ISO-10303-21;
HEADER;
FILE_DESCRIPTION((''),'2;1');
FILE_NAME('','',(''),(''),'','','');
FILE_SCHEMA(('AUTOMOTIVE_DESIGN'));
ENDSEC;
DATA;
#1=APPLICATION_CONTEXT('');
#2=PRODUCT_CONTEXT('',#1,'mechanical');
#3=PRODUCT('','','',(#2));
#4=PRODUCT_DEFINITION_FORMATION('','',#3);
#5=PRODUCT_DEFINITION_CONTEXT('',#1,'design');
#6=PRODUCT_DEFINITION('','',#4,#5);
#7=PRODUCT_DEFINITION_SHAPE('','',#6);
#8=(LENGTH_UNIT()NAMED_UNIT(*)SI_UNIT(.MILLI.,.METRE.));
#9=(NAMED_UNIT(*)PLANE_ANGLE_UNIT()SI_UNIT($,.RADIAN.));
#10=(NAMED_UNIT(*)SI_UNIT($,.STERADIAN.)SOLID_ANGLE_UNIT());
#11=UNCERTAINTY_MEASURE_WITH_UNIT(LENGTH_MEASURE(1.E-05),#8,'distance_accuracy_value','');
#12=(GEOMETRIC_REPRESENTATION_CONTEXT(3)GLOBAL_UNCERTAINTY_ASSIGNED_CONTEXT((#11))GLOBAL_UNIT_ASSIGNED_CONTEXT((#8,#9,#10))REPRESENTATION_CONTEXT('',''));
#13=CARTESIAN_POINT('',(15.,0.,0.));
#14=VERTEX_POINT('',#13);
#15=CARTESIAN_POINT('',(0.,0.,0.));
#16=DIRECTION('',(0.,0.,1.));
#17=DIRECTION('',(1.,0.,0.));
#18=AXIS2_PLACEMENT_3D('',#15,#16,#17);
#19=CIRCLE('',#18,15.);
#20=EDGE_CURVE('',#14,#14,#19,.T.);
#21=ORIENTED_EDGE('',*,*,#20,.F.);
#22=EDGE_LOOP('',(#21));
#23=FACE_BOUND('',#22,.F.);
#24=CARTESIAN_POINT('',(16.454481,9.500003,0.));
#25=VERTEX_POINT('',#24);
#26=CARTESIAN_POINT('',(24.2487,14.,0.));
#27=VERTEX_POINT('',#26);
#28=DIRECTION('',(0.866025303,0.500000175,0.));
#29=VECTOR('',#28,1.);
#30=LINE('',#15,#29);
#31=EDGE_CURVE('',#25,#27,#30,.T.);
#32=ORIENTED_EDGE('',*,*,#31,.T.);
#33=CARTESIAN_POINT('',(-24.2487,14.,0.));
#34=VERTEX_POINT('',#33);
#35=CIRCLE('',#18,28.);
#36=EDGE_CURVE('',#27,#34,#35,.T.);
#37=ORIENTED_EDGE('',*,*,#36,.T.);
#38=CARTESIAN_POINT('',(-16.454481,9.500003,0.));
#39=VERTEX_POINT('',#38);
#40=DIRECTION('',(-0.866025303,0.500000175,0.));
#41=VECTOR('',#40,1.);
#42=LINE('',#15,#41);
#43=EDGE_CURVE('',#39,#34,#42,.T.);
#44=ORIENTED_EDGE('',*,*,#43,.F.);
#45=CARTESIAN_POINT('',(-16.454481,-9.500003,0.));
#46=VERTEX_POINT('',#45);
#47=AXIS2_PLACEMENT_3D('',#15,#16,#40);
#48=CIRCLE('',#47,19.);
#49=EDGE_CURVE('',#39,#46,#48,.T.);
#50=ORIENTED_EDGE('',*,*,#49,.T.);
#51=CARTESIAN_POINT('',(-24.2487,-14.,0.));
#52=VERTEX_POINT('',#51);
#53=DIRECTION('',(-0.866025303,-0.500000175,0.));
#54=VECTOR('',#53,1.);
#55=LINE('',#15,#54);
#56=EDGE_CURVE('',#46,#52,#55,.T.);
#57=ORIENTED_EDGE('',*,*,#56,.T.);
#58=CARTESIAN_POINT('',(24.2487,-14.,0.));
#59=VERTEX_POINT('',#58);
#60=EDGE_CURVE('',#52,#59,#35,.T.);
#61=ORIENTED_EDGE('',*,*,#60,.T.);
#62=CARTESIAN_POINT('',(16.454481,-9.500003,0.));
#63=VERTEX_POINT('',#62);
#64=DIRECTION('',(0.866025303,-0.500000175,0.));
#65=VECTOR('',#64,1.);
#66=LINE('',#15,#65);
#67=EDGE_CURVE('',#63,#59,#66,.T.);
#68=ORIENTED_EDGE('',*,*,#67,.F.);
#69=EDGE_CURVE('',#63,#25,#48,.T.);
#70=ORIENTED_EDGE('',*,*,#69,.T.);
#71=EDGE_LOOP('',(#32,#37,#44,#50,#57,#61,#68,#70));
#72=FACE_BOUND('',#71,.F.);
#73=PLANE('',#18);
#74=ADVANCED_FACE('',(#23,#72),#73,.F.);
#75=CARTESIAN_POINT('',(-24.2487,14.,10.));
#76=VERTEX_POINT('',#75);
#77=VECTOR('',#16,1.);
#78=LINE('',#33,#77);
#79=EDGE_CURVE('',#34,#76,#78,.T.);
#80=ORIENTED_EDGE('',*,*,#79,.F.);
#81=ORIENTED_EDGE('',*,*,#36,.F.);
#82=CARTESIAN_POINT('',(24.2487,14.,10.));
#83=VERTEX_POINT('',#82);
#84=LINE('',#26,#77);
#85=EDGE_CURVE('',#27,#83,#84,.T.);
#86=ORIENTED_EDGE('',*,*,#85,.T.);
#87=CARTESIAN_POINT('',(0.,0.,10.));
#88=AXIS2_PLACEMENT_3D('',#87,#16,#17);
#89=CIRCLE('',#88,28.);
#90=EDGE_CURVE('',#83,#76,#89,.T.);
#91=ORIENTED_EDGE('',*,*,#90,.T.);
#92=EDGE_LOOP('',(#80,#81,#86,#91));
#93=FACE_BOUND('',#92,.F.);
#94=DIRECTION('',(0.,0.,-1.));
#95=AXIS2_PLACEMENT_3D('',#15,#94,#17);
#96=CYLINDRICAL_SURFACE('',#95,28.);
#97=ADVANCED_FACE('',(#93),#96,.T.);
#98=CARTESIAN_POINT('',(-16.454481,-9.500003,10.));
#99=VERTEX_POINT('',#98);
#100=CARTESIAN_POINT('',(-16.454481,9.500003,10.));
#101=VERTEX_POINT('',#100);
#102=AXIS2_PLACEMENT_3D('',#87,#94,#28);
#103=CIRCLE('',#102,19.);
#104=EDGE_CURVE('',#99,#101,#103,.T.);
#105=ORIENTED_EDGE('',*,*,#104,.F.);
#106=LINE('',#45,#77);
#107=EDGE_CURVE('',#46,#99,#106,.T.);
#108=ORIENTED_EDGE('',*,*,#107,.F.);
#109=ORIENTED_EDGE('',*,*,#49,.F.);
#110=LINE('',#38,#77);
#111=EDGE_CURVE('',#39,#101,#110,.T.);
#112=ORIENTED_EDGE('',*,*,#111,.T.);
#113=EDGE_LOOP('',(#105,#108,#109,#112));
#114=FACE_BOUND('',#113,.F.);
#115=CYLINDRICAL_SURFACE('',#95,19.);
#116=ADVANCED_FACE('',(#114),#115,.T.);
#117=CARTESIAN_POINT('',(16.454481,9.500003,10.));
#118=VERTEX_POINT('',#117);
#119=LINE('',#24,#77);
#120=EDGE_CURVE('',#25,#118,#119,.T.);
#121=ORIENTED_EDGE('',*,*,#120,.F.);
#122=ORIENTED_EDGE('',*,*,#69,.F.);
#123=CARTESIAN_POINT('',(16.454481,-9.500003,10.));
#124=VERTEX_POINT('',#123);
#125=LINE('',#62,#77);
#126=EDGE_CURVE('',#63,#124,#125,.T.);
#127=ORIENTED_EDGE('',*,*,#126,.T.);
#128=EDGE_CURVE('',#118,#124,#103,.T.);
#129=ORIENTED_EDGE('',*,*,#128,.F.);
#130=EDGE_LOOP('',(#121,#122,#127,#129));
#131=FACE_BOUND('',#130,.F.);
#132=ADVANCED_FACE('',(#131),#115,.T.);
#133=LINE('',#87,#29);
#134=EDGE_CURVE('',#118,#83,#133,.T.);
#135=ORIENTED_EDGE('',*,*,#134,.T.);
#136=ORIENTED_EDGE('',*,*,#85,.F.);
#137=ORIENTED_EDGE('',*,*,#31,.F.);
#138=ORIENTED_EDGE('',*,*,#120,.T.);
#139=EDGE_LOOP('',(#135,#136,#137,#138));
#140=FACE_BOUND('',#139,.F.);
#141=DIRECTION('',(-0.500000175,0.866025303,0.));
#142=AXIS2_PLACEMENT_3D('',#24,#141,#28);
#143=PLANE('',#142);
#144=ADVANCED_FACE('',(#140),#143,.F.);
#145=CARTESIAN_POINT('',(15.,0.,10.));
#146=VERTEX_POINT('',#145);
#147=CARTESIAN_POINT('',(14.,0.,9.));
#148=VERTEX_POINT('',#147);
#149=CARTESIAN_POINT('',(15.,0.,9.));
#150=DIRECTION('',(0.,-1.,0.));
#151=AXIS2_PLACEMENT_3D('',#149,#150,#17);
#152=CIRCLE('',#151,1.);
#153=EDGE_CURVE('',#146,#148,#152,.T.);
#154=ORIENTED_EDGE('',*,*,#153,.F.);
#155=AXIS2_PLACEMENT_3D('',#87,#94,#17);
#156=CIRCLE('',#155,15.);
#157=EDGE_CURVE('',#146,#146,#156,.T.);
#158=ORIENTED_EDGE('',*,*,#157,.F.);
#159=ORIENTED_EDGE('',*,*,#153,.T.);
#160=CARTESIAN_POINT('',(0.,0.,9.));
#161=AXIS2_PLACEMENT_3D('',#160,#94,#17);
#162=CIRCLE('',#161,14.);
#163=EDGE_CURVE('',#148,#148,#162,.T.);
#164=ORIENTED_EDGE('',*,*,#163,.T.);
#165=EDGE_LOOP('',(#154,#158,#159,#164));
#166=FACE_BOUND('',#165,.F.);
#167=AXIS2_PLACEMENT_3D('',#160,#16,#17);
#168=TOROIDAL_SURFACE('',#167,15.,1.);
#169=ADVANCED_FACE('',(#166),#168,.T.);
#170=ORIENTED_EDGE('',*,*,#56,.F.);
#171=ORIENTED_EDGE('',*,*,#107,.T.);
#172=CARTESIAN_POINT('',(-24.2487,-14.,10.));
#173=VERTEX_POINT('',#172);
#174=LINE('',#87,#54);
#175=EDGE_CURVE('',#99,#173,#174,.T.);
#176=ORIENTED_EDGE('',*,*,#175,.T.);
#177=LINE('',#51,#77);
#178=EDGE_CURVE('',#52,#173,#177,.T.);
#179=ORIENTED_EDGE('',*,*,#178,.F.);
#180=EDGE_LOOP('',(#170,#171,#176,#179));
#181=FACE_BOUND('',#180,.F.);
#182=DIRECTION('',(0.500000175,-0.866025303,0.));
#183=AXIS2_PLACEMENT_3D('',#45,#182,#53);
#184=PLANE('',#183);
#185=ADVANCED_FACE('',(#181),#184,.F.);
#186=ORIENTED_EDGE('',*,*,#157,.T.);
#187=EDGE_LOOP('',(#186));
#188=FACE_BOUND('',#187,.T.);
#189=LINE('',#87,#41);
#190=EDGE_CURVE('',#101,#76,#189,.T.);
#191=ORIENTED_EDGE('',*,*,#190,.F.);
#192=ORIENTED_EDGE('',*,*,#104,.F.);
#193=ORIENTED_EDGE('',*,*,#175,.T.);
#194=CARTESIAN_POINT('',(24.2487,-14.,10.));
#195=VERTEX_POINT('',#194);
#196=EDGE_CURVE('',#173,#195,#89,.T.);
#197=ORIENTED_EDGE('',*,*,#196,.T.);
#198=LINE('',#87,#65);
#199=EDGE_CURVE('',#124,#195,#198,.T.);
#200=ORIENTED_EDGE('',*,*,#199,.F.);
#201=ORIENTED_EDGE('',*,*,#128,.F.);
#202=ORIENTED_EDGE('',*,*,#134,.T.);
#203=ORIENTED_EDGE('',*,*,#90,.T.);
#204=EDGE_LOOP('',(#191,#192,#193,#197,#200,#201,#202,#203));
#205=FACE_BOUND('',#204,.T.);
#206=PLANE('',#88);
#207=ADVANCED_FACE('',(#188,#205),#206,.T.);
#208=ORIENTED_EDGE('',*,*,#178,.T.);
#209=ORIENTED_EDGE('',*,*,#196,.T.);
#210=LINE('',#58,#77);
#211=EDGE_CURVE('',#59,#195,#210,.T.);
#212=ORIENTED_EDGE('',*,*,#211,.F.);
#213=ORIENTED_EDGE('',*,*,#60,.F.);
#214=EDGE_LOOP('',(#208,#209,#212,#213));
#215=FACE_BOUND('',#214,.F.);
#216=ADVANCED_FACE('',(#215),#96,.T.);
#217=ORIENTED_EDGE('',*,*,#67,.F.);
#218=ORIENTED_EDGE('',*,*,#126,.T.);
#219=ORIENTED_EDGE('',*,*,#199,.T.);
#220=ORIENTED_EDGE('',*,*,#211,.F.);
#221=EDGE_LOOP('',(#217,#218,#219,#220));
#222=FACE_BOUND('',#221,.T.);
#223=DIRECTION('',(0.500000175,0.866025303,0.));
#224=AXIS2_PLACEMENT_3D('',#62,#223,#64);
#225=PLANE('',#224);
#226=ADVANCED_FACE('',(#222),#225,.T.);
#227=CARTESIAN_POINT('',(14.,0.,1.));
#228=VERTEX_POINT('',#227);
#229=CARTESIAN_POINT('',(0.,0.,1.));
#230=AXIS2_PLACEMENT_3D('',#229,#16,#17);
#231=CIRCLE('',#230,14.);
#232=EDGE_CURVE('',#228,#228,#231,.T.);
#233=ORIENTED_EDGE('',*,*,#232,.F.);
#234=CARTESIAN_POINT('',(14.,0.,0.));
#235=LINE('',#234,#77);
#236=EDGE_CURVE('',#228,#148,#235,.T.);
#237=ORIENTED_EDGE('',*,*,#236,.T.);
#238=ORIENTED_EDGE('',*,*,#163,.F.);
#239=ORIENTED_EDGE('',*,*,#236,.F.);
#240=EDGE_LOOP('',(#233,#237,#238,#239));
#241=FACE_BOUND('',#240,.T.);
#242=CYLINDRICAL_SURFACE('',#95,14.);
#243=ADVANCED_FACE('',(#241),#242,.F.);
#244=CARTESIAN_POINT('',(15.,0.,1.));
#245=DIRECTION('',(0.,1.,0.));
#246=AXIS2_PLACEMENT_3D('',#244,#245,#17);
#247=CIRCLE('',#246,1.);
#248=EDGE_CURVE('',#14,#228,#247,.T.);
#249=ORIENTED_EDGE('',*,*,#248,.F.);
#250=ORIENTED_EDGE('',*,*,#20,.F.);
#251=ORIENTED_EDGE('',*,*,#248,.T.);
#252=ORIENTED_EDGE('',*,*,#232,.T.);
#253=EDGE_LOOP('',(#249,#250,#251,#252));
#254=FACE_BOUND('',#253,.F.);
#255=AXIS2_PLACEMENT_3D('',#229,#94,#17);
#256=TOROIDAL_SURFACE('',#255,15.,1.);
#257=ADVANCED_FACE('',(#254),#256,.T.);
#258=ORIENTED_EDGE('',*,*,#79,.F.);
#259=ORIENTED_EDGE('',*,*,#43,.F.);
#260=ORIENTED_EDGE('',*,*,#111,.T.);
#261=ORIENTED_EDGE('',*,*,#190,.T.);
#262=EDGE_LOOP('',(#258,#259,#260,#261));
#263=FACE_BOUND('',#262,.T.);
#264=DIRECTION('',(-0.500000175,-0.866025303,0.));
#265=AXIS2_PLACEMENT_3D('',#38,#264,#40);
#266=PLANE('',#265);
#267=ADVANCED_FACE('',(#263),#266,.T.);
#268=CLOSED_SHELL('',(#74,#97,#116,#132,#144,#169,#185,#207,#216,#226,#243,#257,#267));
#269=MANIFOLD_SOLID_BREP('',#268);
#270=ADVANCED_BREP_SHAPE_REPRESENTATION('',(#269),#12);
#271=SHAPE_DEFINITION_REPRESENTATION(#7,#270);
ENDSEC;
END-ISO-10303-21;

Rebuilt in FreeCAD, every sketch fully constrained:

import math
import FreeCAD as App
import Part
import Sketcher
from FreeCAD import Vector
Q = App.Units.Quantity


def edges_at(feature, points):
    """Names of the edges that pass closest to the given points."""
    edges = feature.Shape.Edges
    near = lambda p: min(range(len(edges)), key=lambda i: edges[i].distToShape(Part.Vertex(*p))[0])
    return sorted({f"Edge{near(p) + 1}" for p in points})

doc = App.newDocument("Part")
body = doc.addObject("PartDesign::Body", "Body")

# Sketch on XY plane
sketch1 = doc.addObject("Sketcher::SketchObject", "Sketch")
body.addObject(sketch1)
sketch1.AttachmentSupport = (doc.XY_Plane, [""])
sketch1.MapMode = "FlatFace"
sketch1.addGeometry([
    Part.LineSegment(Vector(16.454481, 9.500003, 0), Vector(24.2487, 14, 0)),  # 0
    Part.ArcOfCircle(Part.Circle(Vector(0, 0, 0), Vector(0, 0, 1), 28), math.radians(30.000012), math.radians(149.999988)),  # 1
    Part.LineSegment(Vector(-24.2487, 14, 0), Vector(-16.454481, 9.500003, 0)),  # 2
    Part.ArcOfCircle(Part.Circle(Vector(0, 0, 0), Vector(0, 0, 1), 19), math.radians(149.999988), math.radians(390.000012)),  # 3
    Part.Circle(Vector(0, 0, 0), Vector(0, 0, 1), 14),  # 4
], False)
sketch1.addConstraint([
    Sketcher.Constraint("Coincident", 0, 2, 1, 1),
    Sketcher.Constraint("Coincident", 1, 2, 2, 1),
    Sketcher.Constraint("Coincident", 2, 2, 3, 1),
    Sketcher.Constraint("Coincident", 3, 2, 0, 1),
    Sketcher.Constraint("Coincident", 1, 3, -1, 1),
    Sketcher.Constraint("Coincident", 3, 3, -1, 1),
    Sketcher.Constraint("Coincident", 4, 3, -1, 1),
    Sketcher.Constraint("Horizontal", 0, 2, 1, 2),
    Sketcher.Constraint("Horizontal", 2, 2, 3, 2),
    Sketcher.Constraint("Diameter", 4, Q("28 mm")),
    Sketcher.Constraint("Radius", 1, Q("28 mm")),
    Sketcher.Constraint("Angle", 0, Q("30 deg")),
    Sketcher.Constraint("Radius", 3, Q("19 mm")),
    Sketcher.Constraint("DistanceY", -1, 1, 0, 2, Q("14 mm")),
])
pad1 = doc.addObject("PartDesign::Pad", "Pad")
body.addObject(pad1)
pad1.Profile = sketch1
pad1.Length = 10
doc.recompute()

fillet = doc.addObject("PartDesign::Fillet", "Fillet")
body.addObject(fillet)
fillet.Base = (pad1, edges_at(pad1, [(-14, 0, 0), (-14, 0, 10)]))
fillet.Radius = 1

# Sketch on XY plane
sketch2 = doc.addObject("Sketcher::SketchObject", "Sketch001")
body.addObject(sketch2)
sketch2.AttachmentSupport = (doc.XY_Plane, [""])
sketch2.MapMode = "FlatFace"
sketch2.addGeometry([
    Part.ArcOfCircle(Part.Circle(Vector(0, 0, 0), Vector(0, 0, 1), 28), math.radians(-149.999988), math.radians(-30.000012)),
    Part.LineSegment(Vector(24.2487, -14, 0), Vector(16.454481, -9.500003, 0)),
    Part.ArcOfCircle(Part.Circle(Vector(0, 0, 0), Vector(0, 0, 1), 19), math.radians(-149.999988), math.radians(-30.000012)),
    Part.LineSegment(Vector(-16.454481, -9.500003, 0), Vector(-24.2487, -14, 0)),
], False)
sketch2.addConstraint([
    Sketcher.Constraint("Coincident", 0, 2, 1, 1),
    Sketcher.Constraint("Coincident", 1, 2, 2, 2),
    Sketcher.Constraint("Coincident", 2, 1, 3, 1),
    Sketcher.Constraint("Coincident", 3, 2, 0, 1),
    Sketcher.Constraint("Coincident", 0, 3, -1, 1),
    Sketcher.Constraint("Coincident", 2, 3, -1, 1),
    Sketcher.Constraint("Horizontal", 1, 2, 2, 1),
    Sketcher.Constraint("Horizontal", 0, 2, 3, 2),
    Sketcher.Constraint("Radius", 0, Q("28 mm")),
    Sketcher.Constraint("Radius", 2, Q("19 mm")),
    Sketcher.Constraint("Angle", 1, Q("150 deg")),
    Sketcher.Constraint("DistanceY", 0, 2, -1, 1, Q("14 mm")),
])
pad2 = doc.addObject("PartDesign::Pad", "Pad001")
body.addObject(pad2)
pad2.Profile = sketch2
pad2.Length = 10

doc.recompute()
